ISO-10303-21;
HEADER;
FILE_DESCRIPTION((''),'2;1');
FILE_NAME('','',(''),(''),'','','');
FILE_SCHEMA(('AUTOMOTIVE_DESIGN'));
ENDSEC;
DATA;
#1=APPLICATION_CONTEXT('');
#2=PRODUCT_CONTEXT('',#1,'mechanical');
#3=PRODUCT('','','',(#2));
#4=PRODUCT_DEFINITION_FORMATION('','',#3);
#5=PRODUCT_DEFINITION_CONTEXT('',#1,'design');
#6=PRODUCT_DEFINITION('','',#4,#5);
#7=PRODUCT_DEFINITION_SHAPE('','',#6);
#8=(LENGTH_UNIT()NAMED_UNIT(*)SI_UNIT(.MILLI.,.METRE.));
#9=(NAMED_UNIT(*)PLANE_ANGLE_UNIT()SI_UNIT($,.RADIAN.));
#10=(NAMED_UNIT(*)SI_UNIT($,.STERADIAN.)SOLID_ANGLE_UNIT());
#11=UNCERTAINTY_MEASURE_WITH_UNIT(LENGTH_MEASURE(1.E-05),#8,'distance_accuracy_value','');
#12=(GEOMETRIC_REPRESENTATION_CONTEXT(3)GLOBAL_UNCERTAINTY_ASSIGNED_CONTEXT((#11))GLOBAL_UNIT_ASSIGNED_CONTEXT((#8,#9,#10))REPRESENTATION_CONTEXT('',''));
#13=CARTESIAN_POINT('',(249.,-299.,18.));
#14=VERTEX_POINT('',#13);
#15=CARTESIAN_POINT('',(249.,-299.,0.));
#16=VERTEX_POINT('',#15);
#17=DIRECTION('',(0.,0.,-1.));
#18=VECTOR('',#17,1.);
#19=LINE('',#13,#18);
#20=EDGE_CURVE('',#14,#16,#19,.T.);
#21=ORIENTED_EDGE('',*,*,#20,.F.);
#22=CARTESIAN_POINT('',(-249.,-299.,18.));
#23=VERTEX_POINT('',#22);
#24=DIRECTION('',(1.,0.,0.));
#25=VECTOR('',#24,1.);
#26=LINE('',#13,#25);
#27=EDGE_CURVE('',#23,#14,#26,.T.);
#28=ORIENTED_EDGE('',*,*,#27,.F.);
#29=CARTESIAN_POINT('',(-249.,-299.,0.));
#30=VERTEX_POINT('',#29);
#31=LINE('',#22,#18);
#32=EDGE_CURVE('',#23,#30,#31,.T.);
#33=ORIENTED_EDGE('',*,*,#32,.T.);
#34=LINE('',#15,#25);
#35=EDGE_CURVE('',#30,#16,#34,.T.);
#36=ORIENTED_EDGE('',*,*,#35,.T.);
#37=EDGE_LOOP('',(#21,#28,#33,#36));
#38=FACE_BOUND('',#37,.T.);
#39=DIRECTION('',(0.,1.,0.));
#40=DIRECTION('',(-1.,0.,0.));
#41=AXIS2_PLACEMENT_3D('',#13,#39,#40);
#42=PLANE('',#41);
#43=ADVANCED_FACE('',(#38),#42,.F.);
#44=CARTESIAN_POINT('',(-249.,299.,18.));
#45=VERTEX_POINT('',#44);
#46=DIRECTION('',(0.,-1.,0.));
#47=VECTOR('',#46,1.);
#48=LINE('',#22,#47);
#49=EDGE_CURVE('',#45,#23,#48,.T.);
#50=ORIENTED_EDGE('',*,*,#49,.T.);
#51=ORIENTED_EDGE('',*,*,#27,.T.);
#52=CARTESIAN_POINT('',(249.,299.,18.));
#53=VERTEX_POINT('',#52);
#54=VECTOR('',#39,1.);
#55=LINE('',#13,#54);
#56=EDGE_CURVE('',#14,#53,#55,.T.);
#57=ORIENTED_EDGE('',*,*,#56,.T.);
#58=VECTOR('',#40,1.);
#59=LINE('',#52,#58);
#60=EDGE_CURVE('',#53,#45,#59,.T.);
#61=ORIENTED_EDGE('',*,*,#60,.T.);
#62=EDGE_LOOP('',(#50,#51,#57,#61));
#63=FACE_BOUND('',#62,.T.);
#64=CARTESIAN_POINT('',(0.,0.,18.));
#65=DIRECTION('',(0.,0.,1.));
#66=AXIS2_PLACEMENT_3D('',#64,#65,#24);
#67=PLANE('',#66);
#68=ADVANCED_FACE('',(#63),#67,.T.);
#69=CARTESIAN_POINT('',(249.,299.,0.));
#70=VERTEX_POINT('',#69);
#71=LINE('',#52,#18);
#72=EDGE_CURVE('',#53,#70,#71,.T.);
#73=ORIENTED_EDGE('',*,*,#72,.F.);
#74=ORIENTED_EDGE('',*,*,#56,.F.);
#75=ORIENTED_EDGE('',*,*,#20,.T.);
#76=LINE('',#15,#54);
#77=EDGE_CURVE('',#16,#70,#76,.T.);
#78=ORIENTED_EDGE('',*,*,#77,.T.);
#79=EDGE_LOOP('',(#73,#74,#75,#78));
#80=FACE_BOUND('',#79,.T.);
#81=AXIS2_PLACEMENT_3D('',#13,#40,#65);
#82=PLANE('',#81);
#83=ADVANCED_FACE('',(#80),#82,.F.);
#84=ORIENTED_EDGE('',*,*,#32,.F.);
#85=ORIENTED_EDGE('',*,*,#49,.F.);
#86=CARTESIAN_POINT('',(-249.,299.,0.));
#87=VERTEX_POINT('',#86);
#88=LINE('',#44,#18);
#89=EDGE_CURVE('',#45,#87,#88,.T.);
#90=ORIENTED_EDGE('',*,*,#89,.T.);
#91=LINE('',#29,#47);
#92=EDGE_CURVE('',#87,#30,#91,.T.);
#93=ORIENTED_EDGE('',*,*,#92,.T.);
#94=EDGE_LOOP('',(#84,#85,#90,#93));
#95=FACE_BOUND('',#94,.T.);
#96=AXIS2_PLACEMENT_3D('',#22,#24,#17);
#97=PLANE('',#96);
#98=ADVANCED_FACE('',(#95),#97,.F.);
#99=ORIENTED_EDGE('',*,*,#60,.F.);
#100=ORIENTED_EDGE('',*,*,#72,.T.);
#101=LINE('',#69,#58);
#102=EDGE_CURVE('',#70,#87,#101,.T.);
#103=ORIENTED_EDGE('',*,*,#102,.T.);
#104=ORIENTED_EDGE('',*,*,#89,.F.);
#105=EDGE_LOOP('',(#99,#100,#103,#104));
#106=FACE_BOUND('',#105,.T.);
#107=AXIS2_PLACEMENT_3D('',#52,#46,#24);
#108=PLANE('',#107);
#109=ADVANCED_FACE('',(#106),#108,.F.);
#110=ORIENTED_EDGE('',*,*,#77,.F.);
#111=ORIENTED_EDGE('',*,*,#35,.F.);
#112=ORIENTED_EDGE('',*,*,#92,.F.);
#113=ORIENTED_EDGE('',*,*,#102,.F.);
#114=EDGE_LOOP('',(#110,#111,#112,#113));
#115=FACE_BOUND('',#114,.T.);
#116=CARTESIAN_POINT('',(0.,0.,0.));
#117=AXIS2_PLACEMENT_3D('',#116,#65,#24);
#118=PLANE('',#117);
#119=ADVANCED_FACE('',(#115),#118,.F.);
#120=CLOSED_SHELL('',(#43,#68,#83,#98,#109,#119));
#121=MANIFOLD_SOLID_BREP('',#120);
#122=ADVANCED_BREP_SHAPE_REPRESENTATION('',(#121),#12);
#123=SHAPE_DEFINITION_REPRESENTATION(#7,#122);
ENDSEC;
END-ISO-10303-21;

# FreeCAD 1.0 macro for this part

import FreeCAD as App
import Part
import Sketcher
from FreeCAD import Vector

doc = App.newDocument("Part")
params = doc.addObject("Spreadsheet::Sheet", "Params")
for row, (alias, value) in enumerate([
    ("sketch1_width", "498 mm"),
    ("sketch1_height", "598 mm"),
    ("pad1_length", "18 mm"),
], start=1):
    params.set(f"A{row}", alias)
    params.set(f"B{row}", "=" + value)
    params.setAlias(f"B{row}", alias)

body = doc.addObject("PartDesign::Body", "Body")

# Sketch on XY plane
sketch1 = body.newObject("Sketcher::SketchObject", "Sketch")
sketch1.AttachmentSupport = (doc.getObject("XY_Plane"), [""])
sketch1.MapMode = "FlatFace"
sketch1.addGeometry([
    Part.LineSegment(Vector(-249, 299, 0), Vector(-249, -299, 0)),
    Part.LineSegment(Vector(-249, -299, 0), Vector(249, -299, 0)),
    Part.LineSegment(Vector(249, -299, 0), Vector(249, 299, 0)),
    Part.LineSegment(Vector(249, 299, 0), Vector(-249, 299, 0)),
], False)
sketch1.addConstraint([
    Sketcher.Constraint("Coincident", 0, 2, 1, 1),
    Sketcher.Constraint("Coincident", 1, 2, 2, 1),
    Sketcher.Constraint("Coincident", 2, 2, 3, 1),
    Sketcher.Constraint("Coincident", 3, 2, 0, 1),
    Sketcher.Constraint("Vertical", 0),
    Sketcher.Constraint("Horizontal", 1),
    Sketcher.Constraint("Vertical", 2),
    Sketcher.Constraint("Horizontal", 3),
    Sketcher.Constraint("Symmetric", 0, 2, 2, 2, -1, 1),
    Sketcher.Constraint("DistanceX", 1, 1, 1, 2, 498.0),
    Sketcher.Constraint("DistanceY", 0, 2, 0, 1, 598.0),
])
sketch1.setExpression("Constraints[9]", "Params.sketch1_width")
sketch1.setExpression("Constraints[10]", "Params.sketch1_height")
pad1 = body.newObject("PartDesign::Pad", "Pad")
pad1.Profile = sketch1
pad1.setExpression("Length", "Params.pad1_length")

doc.recompute()
